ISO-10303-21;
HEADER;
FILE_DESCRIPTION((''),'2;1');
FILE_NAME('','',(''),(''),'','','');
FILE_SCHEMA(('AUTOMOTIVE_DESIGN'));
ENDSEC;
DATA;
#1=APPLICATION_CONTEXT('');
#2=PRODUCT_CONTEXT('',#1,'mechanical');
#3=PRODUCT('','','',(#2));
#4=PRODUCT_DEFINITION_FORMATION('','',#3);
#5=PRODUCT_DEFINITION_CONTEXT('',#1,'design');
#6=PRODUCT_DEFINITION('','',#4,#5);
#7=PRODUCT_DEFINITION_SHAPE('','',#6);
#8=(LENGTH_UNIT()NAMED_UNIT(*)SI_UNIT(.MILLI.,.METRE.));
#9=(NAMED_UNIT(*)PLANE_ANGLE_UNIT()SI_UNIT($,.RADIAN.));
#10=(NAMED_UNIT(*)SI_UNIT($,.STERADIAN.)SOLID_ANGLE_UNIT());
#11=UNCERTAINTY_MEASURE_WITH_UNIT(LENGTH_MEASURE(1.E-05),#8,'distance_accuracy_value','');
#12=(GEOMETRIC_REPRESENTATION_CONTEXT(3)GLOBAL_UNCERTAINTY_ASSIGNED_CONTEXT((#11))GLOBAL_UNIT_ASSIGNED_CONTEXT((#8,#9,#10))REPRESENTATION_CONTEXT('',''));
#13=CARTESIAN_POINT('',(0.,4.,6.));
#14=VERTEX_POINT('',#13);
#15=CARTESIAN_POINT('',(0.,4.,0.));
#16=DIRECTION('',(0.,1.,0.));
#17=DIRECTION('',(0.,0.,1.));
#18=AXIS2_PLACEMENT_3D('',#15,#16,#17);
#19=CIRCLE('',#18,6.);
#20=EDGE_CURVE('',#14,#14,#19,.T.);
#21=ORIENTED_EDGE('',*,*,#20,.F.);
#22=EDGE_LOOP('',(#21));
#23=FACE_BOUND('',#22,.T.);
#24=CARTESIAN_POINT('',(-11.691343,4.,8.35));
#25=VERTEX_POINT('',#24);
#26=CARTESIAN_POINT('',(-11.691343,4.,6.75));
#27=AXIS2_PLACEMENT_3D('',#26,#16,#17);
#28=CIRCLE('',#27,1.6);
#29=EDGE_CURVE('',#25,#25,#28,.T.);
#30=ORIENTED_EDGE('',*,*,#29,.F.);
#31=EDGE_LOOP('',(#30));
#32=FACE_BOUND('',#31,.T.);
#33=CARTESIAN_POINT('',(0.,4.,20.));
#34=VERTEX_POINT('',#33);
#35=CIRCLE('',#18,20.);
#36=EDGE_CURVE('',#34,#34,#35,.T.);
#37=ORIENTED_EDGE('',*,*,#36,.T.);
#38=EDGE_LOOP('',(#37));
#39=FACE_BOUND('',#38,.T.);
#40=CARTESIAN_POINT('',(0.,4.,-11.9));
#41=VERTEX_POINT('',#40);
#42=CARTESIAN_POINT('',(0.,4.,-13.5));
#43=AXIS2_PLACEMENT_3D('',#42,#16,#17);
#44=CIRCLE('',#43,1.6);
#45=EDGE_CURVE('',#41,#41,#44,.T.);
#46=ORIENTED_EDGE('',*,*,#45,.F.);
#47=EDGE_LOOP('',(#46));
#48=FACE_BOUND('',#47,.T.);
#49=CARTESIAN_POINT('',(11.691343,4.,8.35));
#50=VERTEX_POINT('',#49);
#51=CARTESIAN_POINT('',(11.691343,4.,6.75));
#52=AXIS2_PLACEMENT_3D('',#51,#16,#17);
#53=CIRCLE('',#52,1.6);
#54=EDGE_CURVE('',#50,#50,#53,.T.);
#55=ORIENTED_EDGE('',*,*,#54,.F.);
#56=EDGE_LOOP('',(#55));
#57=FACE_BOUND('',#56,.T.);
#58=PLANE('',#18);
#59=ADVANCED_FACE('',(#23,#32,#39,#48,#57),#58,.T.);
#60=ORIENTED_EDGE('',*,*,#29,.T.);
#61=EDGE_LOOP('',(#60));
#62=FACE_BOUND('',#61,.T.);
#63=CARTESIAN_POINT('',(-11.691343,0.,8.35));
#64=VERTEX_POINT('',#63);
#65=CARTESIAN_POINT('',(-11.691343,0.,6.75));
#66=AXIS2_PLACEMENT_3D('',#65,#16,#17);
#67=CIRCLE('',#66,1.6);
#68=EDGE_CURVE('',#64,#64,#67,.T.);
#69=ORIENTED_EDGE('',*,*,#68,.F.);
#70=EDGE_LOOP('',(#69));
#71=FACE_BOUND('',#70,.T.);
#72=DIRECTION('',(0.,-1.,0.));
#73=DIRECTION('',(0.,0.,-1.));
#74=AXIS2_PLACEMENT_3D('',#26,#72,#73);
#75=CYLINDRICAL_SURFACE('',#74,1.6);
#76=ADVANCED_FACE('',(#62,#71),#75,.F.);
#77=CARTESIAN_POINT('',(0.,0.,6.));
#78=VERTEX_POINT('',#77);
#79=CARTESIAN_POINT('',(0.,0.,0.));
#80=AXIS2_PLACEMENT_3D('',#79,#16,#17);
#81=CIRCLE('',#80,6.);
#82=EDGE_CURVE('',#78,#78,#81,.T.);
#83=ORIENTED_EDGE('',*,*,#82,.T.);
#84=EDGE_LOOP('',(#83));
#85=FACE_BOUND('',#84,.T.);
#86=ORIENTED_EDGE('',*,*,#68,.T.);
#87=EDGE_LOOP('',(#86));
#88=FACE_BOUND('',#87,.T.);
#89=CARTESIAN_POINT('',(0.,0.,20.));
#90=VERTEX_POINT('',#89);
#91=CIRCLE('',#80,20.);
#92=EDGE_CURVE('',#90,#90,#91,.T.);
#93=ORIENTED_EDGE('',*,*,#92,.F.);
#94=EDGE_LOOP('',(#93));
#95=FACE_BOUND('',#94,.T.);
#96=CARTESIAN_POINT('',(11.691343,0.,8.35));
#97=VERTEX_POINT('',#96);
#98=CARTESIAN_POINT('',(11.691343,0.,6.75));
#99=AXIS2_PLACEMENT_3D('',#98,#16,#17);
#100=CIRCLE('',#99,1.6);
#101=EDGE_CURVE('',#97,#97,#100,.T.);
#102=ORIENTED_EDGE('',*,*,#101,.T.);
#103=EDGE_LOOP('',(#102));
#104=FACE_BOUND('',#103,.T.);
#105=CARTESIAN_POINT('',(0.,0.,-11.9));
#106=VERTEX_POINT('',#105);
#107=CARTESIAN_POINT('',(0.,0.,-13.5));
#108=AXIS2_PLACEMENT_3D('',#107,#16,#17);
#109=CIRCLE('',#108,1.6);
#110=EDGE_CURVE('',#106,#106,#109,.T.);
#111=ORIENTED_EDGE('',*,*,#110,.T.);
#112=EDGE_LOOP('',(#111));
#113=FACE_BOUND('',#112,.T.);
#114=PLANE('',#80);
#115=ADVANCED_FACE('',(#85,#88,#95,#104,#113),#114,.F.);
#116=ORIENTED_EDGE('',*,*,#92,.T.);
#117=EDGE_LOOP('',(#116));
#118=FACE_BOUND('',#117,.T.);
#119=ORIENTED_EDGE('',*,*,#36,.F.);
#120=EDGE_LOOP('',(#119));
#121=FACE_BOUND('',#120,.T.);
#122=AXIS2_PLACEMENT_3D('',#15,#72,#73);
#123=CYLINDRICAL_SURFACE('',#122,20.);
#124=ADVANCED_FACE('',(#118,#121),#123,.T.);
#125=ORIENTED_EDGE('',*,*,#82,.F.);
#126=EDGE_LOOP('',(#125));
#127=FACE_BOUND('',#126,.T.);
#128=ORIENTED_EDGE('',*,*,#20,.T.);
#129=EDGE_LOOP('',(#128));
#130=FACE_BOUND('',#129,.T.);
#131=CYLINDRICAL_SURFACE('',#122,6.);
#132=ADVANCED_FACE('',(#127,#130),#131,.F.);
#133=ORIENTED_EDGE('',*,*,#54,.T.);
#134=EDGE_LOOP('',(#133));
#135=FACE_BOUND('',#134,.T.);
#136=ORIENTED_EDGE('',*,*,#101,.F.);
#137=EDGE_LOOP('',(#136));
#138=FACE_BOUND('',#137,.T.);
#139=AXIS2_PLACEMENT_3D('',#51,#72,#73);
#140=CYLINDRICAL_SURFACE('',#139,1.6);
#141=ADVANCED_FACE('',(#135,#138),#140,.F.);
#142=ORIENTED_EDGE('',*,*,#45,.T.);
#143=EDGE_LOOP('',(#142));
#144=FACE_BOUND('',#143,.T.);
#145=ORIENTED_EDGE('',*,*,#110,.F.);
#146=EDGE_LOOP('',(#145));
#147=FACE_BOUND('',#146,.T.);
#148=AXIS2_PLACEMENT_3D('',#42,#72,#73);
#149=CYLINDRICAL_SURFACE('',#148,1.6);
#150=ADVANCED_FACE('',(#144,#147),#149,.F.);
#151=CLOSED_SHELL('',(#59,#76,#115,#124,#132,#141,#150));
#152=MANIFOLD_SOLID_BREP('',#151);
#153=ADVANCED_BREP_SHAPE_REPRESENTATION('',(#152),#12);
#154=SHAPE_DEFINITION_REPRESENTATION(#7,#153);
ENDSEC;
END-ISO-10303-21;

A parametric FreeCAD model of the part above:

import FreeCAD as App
import Part
import Sketcher

doc = App.newDocument("Part")
body = doc.addObject("PartDesign::Body", "Body")

# Sketch on XZ plane
sketch1 = body.newObject("Sketcher::SketchObject", "Sketch")
sketch1.AttachmentSupport = (doc.getObject("XZ_Plane"), [""])
sketch1.MapMode = "FlatFace"
sketch1.addGeometry(Part.Circle(App.Vector(0, 0, 0), App.Vector(0, 0, 1), 20), False)
sketch1.addGeometry(Part.Circle(App.Vector(0, -13.5, 0), App.Vector(0, 0, 1), 1.6), False)
sketch1.addGeometry(Part.Circle(App.Vector(-11.7, 6.8, 0), App.Vector(0, 0, 1), 1.6), False)
sketch1.addGeometry(Part.Circle(App.Vector(0, 0, 0), App.Vector(0, 0, 1), 6), False)
sketch1.addGeometry(Part.Circle(App.Vector(11.7, 6.8, 0), App.Vector(0, 0, 1), 1.6), False)
sketch1.addConstraint(Sketcher.Constraint("Coincident", 0, 3, -1, 1))
sketch1.addConstraint(Sketcher.Constraint("Coincident", 3, 3, -1, 1))
sketch1.addConstraint(Sketcher.Constraint("Equal", 1, 2))
sketch1.addConstraint(Sketcher.Constraint("Equal", 2, 4))
sketch1.addConstraint(Sketcher.Constraint("Symmetric", 2, 3, 4, 3, -2))
sketch1.addConstraint(Sketcher.Constraint("PointOnObject", 1, 3, -2))
sketch1.addConstraint(Sketcher.Constraint("Diameter", 0, 40.0))
sketch1.addConstraint(Sketcher.Constraint("Diameter", 3, 12.0))
sketch1.addConstraint(Sketcher.Constraint("Diameter", 1, 3.2))
sketch1.addConstraint(Sketcher.Constraint("DistanceY", 1, 3, -1, 1, 13.5))
sketch1.addConstraint(Sketcher.Constraint("DistanceY", -1, 1, 2, 3, 6.75))
sketch1.addConstraint(Sketcher.Constraint("DistanceX", 2, 3, -1, 1, 11.691343))
pad1 = body.newObject("PartDesign::Pad", "Pad")
pad1.Profile = sketch1
pad1.Length = 4
pad1.Reversed = True

doc.recompute()
